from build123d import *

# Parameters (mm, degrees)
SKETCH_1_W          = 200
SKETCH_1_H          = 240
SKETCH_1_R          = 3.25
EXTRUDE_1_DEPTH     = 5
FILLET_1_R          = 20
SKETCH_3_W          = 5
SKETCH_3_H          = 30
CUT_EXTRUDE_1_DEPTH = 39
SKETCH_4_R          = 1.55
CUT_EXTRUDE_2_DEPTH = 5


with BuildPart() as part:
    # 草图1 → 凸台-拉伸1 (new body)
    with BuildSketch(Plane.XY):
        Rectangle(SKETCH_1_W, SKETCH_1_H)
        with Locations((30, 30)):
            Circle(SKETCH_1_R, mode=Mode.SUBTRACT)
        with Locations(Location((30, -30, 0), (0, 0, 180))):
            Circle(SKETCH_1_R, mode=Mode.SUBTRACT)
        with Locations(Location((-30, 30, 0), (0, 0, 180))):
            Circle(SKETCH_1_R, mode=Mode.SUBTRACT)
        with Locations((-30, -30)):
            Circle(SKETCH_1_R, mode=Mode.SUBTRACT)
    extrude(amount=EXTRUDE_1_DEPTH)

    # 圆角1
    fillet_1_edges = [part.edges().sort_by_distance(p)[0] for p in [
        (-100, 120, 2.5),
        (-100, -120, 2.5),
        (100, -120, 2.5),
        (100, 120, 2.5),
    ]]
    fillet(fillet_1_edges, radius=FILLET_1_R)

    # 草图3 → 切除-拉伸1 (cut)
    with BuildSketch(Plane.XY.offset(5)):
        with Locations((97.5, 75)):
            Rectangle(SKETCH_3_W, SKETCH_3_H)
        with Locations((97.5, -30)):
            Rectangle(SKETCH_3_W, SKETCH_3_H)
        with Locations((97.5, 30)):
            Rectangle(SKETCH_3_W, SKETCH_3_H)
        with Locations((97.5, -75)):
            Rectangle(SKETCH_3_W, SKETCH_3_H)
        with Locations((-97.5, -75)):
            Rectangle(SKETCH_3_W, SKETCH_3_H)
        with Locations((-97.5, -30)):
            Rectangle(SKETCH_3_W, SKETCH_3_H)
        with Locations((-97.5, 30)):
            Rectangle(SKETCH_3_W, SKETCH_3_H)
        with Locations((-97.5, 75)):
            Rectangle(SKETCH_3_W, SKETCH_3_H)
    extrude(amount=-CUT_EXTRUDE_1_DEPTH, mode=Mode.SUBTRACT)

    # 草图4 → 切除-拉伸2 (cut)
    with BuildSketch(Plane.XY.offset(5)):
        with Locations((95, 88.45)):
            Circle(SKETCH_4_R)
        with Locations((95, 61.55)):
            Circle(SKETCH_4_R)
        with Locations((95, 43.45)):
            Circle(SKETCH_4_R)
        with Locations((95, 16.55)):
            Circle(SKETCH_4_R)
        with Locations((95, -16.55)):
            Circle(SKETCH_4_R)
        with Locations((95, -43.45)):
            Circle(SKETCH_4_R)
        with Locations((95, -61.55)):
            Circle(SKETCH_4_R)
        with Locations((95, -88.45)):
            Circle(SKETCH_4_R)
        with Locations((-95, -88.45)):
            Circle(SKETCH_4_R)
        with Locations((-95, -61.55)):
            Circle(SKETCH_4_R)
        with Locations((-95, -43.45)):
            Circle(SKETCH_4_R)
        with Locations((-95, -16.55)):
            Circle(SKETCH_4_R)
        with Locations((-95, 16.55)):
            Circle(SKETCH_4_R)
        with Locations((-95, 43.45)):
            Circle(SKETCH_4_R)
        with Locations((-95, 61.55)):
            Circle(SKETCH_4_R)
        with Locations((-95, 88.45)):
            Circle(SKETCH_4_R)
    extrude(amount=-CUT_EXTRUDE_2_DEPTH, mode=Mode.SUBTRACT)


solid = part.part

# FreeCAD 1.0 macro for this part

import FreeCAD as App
import Part
import Sketcher
Q = App.Units.Quantity


def edges_at(feature, points):
    """Names of the edges that pass closest to the given points."""
    edges = feature.Shape.Edges
    near = lambda p: min(range(len(edges)), key=lambda i: edges[i].distToShape(Part.Vertex(*p))[0])
    return sorted({f"Edge{near(p) + 1}" for p in points})

doc = App.newDocument("Part")
body = doc.addObject("PartDesign::Body", "Body")

sketch1 = doc.addObject("Sketcher::SketchObject", "Sketch")
body.addObject(sketch1)
sketch1.AttachmentSupport = (doc.XY_Plane, [""])
sketch1.MapMode = "FlatFace"
sketch1.addGeometry(Part.LineSegment(App.Vector(-100, 120, 0), App.Vector(-100, -120, 0)), False)
sketch1.addGeometry(Part.LineSegment(App.Vector(-100, -120, 0), App.Vector(100, -120, 0)), False)
sketch1.addGeometry(Part.LineSegment(App.Vector(100, -120, 0), App.Vector(100, 120, 0)), False)
sketch1.addGeometry(Part.LineSegment(App.Vector(100, 120, 0), App.Vector(-100, 120, 0)), False)
sketch1.addGeometry(Part.Circle(App.Vector(-30, -30, 0), App.Vector(0, 0, 1), 3.2), False)
sketch1.addGeometry(Part.Circle(App.Vector(30, -30, 0), App.Vector(0, 0, 1), 3.2), False)
sketch1.addGeometry(Part.Circle(App.Vector(-30, 30, 0), App.Vector(0, 0, 1), 3.2), False)
sketch1.addGeometry(Part.Circle(App.Vector(30, 30, 0), App.Vector(0, 0, 1), 3.2), False)
sketch1.addConstraint(Sketcher.Constraint("Coincident", 0, 2, 1, 1))
sketch1.addConstraint(Sketcher.Constraint("Coincident", 1, 2, 2, 1))
sketch1.addConstraint(Sketcher.Constraint("Coincident", 2, 2, 3, 1))
sketch1.addConstraint(Sketcher.Constraint("Coincident", 3, 2, 0, 1))
sketch1.addConstraint(Sketcher.Constraint("Vertical", 0))
sketch1.addConstraint(Sketcher.Constraint("Horizontal", 1))
sketch1.addConstraint(Sketcher.Constraint("Vertical", 2))
sketch1.addConstraint(Sketcher.Constraint("Horizontal", 3))
sketch1.addConstraint(Sketcher.Constraint("Equal", 4, 5))
sketch1.addConstraint(Sketcher.Constraint("Equal", 5, 6))
sketch1.addConstraint(Sketcher.Constraint("Equal", 6, 7))
sketch1.addConstraint(Sketcher.Constraint("Symmetric", 5, 3, 6, 3, -1, 1))
sketch1.addConstraint(Sketcher.Constraint("Symmetric", 4, 3, 7, 3, -1, 1))
sketch1.addConstraint(Sketcher.Constraint("Symmetric", 0, 2, 2, 2, -1, 1))
sketch1.addConstraint(Sketcher.Constraint("Symmetric", 4, 3, 5, 3, -2))
sketch1.addConstraint(Sketcher.Constraint("Diameter", 4, Q("6.5 mm")))
sketch1.addConstraint(Sketcher.Constraint("DistanceX", 1, 1, 1, 2, Q("200 mm")))
sketch1.addConstraint(Sketcher.Constraint("DistanceY", 0, 2, 0, 1, Q("240 mm")))
sketch1.addConstraint(Sketcher.Constraint("DistanceX", 4, 3, -1, 1, Q("30 mm")))
sketch1.addConstraint(Sketcher.Constraint("DistanceY", 4, 3, -1, 1, Q("30 mm")))
pad1 = doc.addObject("PartDesign::Pad", "Pad")
body.addObject(pad1)
pad1.Profile = sketch1
pad1.Length = 5
doc.recompute()

fillet = doc.addObject("PartDesign::Fillet", "Fillet")
body.addObject(fillet)
fillet.Base = (pad1, edges_at(pad1, [
    (-100, 120, 2.5),
    (-100, -120, 2.5),
    (100, -120, 2.5),
    (100, 120, 2.5),
]))
fillet.Radius = 20

sketch2 = doc.addObject("Sketcher::SketchObject", "Sketch001")
body.addObject(sketch2)
sketch2.AttachmentSupport = (doc.XY_Plane, [""])
sketch2.MapMode = "FlatFace"
sketch2.AttachmentOffset = App.Placement(App.Vector(0, 0, 5), App.Rotation())
sketch2.addGeometry(Part.LineSegment(App.Vector(95, 90, 0), App.Vector(95, 60, 0)), False)
sketch2.addGeometry(Part.LineSegment(App.Vector(95, 60, 0), App.Vector(100, 60, 0)), False)
sketch2.addGeometry(Part.LineSegment(App.Vector(100, 60, 0), App.Vector(100, 90, 0)), False)
sketch2.addGeometry(Part.LineSegment(App.Vector(100, 90, 0), App.Vector(95, 90, 0)), False)
sketch2.addGeometry(Part.LineSegment(App.Vector(95, -15, 0), App.Vector(95, -45, 0)), False)
sketch2.addGeometry(Part.LineSegment(App.Vector(95, -45, 0), App.Vector(100, -45, 0)), False)
sketch2.addGeometry(Part.LineSegment(App.Vector(100, -45, 0), App.Vector(100, -15, 0)), False)
sketch2.addGeometry(Part.LineSegment(App.Vector(100, -15, 0), App.Vector(95, -15, 0)), False)
sketch2.addGeometry(Part.LineSegment(App.Vector(95, 45, 0), App.Vector(95, 15, 0)), False)
sketch2.addGeometry(Part.LineSegment(App.Vector(95, 15, 0), App.Vector(100, 15, 0)), False)
sketch2.addGeometry(Part.LineSegment(App.Vector(100, 15, 0), App.Vector(100, 45, 0)), False)
sketch2.addGeometry(Part.LineSegment(App.Vector(100, 45, 0), App.Vector(95, 45, 0)), False)
sketch2.addGeometry(Part.LineSegment(App.Vector(95, -60, 0), App.Vector(95, -90, 0)), False)
sketch2.addGeometry(Part.LineSegment(App.Vector(95, -90, 0), App.Vector(100, -90, 0)), False)
sketch2.addGeometry(Part.LineSegment(App.Vector(100, -90, 0), App.Vector(100, -60, 0)), False)
sketch2.addGeometry(Part.LineSegment(App.Vector(100, -60, 0), App.Vector(95, -60, 0)), False)
sketch2.addGeometry(Part.LineSegment(App.Vector(-100, -60, 0), App.Vector(-100, -90, 0)), False)
sketch2.addGeometry(Part.LineSegment(App.Vector(-100, -90, 0), App.Vector(-95, -90, 0)), False)
sketch2.addGeometry(Part.LineSegment(App.Vector(-95, -90, 0), App.Vector(-95, -60, 0)), False)
sketch2.addGeometry(Part.LineSegment(App.Vector(-95, -60, 0), App.Vector(-100, -60, 0)), False)
sketch2.addGeometry(Part.LineSegment(App.Vector(-100, -15, 0), App.Vector(-100, -45, 0)), False)
sketch2.addGeometry(Part.LineSegment(App.Vector(-100, -45, 0), App.Vector(-95, -45, 0)), False)
sketch2.addGeometry(Part.LineSegment(App.Vector(-95, -45, 0), App.Vector(-95, -15, 0)), False)
sketch2.addGeometry(Part.LineSegment(App.Vector(-95, -15, 0), App.Vector(-100, -15, 0)), False)
sketch2.addGeometry(Part.LineSegment(App.Vector(-100, 45, 0), App.Vector(-100, 15, 0)), False)
sketch2.addGeometry(Part.LineSegment(App.Vector(-100, 15, 0), App.Vector(-95, 15, 0)), False)
sketch2.addGeometry(Part.LineSegment(App.Vector(-95, 15, 0), App.Vector(-95, 45, 0)), False)
sketch2.addGeometry(Part.LineSegment(App.Vector(-95, 45, 0), App.Vector(-100, 45, 0)), False)
sketch2.addGeometry(Part.LineSegment(App.Vector(-100, 90, 0), App.Vector(-100, 60, 0)), False)
sketch2.addGeometry(Part.LineSegment(App.Vector(-100, 60, 0), App.Vector(-95, 60, 0)), False)
sketch2.addGeometry(Part.LineSegment(App.Vector(-95, 60, 0), App.Vector(-95, 90, 0)), False)
sketch2.addGeometry(Part.LineSegment(App.Vector(-95, 90, 0), App.Vector(-100, 90, 0)), False)
sketch2.addConstraint(Sketcher.Constraint("Coincident", 0, 2, 1, 1))
sketch2.addConstraint(Sketcher.Constraint("Coincident", 1, 2, 2, 1))
sketch2.addConstraint(Sketcher.Constraint("Coincident", 2, 2, 3, 1))
sketch2.addConstraint(Sketcher.Constraint("Coincident", 3, 2, 0, 1))
sketch2.addConstraint(Sketcher.Constraint("Coincident", 4, 2, 5, 1))
sketch2.addConstraint(Sketcher.Constraint("Coincident", 5, 2, 6, 1))
sketch2.addConstraint(Sketcher.Constraint("Coincident", 6, 2, 7, 1))
sketch2.addConstraint(Sketcher.Constraint("Coincident", 7, 2, 4, 1))
sketch2.addConstraint(Sketcher.Constraint("Coincident", 8, 2, 9, 1))
sketch2.addConstraint(Sketcher.Constraint("Coincident", 9, 2, 10, 1))
sketch2.addConstraint(Sketcher.Constraint("Coincident", 10, 2, 11, 1))
sketch2.addConstraint(Sketcher.Constraint("Coincident", 11, 2, 8, 1))
sketch2.addConstraint(Sketcher.Constraint("Coincident", 12, 2, 13, 1))
sketch2.addConstraint(Sketcher.Constraint("Coincident", 13, 2, 14, 1))
sketch2.addConstraint(Sketcher.Constraint("Coincident", 14, 2, 15, 1))
sketch2.addConstraint(Sketcher.Constraint("Coincident", 15, 2, 12, 1))
sketch2.addConstraint(Sketcher.Constraint("Coincident", 16, 2, 17, 1))
sketch2.addConstraint(Sketcher.Constraint("Coincident", 17, 2, 18, 1))
sketch2.addConstraint(Sketcher.Constraint("Coincident", 18, 2, 19, 1))
sketch2.addConstraint(Sketcher.Constraint("Coincident", 19, 2, 16, 1))
sketch2.addConstraint(Sketcher.Constraint("Coincident", 20, 2, 21, 1))
sketch2.addConstraint(Sketcher.Constraint("Coincident", 21, 2, 22, 1))
sketch2.addConstraint(Sketcher.Constraint("Coincident", 22, 2, 23, 1))
sketch2.addConstraint(Sketcher.Constraint("Coincident", 23, 2, 20, 1))
sketch2.addConstraint(Sketcher.Constraint("Coincident", 24, 2, 25, 1))
sketch2.addConstraint(Sketcher.Constraint("Coincident", 25, 2, 26, 1))
sketch2.addConstraint(Sketcher.Constraint("Coincident", 26, 2, 27, 1))
sketch2.addConstraint(Sketcher.Constraint("Coincident", 27, 2, 24, 1))
sketch2.addConstraint(Sketcher.Constraint("Coincident", 28, 2, 29, 1))
sketch2.addConstraint(Sketcher.Constraint("Coincident", 29, 2, 30, 1))
sketch2.addConstraint(Sketcher.Constraint("Coincident", 30, 2, 31, 1))
sketch2.addConstraint(Sketcher.Constraint("Coincident", 31, 2, 28, 1))
sketch2.addConstraint(Sketcher.Constraint("Vertical", 0))
sketch2.addConstraint(Sketcher.Constraint("Horizontal", 1))
sketch2.addConstraint(Sketcher.Constraint("Vertical", 2))
sketch2.addConstraint(Sketcher.Constraint("Horizontal", 3))
sketch2.addConstraint(Sketcher.Constraint("Vertical", 4))
sketch2.addConstraint(Sketcher.Constraint("Horizontal", 5))
sketch2.addConstraint(Sketcher.Constraint("Vertical", 6))
sketch2.addConstraint(Sketcher.Constraint("Horizontal", 7))
sketch2.addConstraint(Sketcher.Constraint("Vertical", 8))
sketch2.addConstraint(Sketcher.Constraint("Horizontal", 9))
sketch2.addConstraint(Sketcher.Constraint("Vertical", 10))
sketch2.addConstraint(Sketcher.Constraint("Horizontal", 11))
sketch2.addConstraint(Sketcher.Constraint("Vertical", 12))
sketch2.addConstraint(Sketcher.Constraint("Horizontal", 13))
sketch2.addConstraint(Sketcher.Constraint("Vertical", 14))
sketch2.addConstraint(Sketcher.Constraint("Horizontal", 15))
sketch2.addConstraint(Sketcher.Constraint("Vertical", 16))
sketch2.addConstraint(Sketcher.Constraint("Horizontal", 17))
sketch2.addConstraint(Sketcher.Constraint("Vertical", 18))
sketch2.addConstraint(Sketcher.Constraint("Horizontal", 19))
sketch2.addConstraint(Sketcher.Constraint("Vertical", 20))
sketch2.addConstraint(Sketcher.Constraint("Horizontal", 21))
sketch2.addConstraint(Sketcher.Constraint("Vertical", 22))
sketch2.addConstraint(Sketcher.Constraint("Horizontal", 23))
sketch2.addConstraint(Sketcher.Constraint("Vertical", 24))
sketch2.addConstraint(Sketcher.Constraint("Horizontal", 25))
sketch2.addConstraint(Sketcher.Constraint("Vertical", 26))
sketch2.addConstraint(Sketcher.Constraint("Horizontal", 27))
sketch2.addConstraint(Sketcher.Constraint("Vertical", 28))
sketch2.addConstraint(Sketcher.Constraint("Horizontal", 29))
sketch2.addConstraint(Sketcher.Constraint("Vertical", 30))
sketch2.addConstraint(Sketcher.Constraint("Horizontal", 31))
sketch2.addConstraint(Sketcher.Constraint("Symmetric", 2, 2, 16, 2, -1, 1))
sketch2.addConstraint(Sketcher.Constraint("Symmetric", 0, 2, 18, 2, -1, 1))
sketch2.addConstraint(Sketcher.Constraint("Symmetric", 10, 2, 20, 2, -1, 1))
sketch2.addConstraint(Sketcher.Constraint("Symmetric", 8, 2, 22, 2, -1, 1))
sketch2.addConstraint(Sketcher.Constraint("Symmetric", 6, 2, 24, 2, -1, 1))
sketch2.addConstraint(Sketcher.Constraint("Symmetric", 4, 2, 26, 2, -1, 1))
sketch2.addConstraint(Sketcher.Constraint("Symmetric", 14, 2, 28, 2, -1, 1))
sketch2.addConstraint(Sketcher.Constraint("Symmetric", 12, 2, 30, 2, -1, 1))
sketch2.addConstraint(Sketcher.Constraint("Symmetric", 13, 2, 16, 2, -2))
sketch2.addConstraint(Sketcher.Constraint("Symmetric", 15, 2, 18, 2, -2))
sketch2.addConstraint(Sketcher.Constraint("Symmetric", 5, 2, 20, 2, -2))
sketch2.addConstraint(Sketcher.Constraint("Symmetric", 7, 2, 22, 2, -2))
sketch2.addConstraint(Sketcher.Constraint("Vertical", 3, 2, 4, 2))
sketch2.addConstraint(Sketcher.Constraint("Vertical", 2, 2, 5, 2))
sketch2.addConstraint(Sketcher.Constraint("Equal", 2, 4))
sketch2.addConstraint(Sketcher.Constraint("DistanceX", 1, 1, 1, 2, Q("5 mm")))
sketch2.addConstraint(Sketcher.Constraint("DistanceY", 0, 2, 0, 1, Q("30 mm")))
sketch2.addConstraint(Sketcher.Constraint("DistanceX", -1, 1, 0, 2, Q("95 mm")))
sketch2.addConstraint(Sketcher.Constraint("DistanceY", -1, 1, 0, 2, Q("60 mm")))
sketch2.addConstraint(Sketcher.Constraint("DistanceY", 4, 2, -1, 1, Q("45 mm")))
pocket1 = doc.addObject("PartDesign::Pocket", "Pocket")
body.addObject(pocket1)
pocket1.Profile = sketch2
pocket1.Length = 39

sketch3 = doc.addObject("Sketcher::SketchObject", "Sketch002")
body.addObject(sketch3)
sketch3.AttachmentSupport = (doc.XY_Plane, [""])
sketch3.MapMode = "FlatFace"
sketch3.AttachmentOffset = App.Placement(App.Vector(0, 0, 5), App.Rotation())
sketch3.addGeometry(Part.Circle(App.Vector(95, 88.5, 0), App.Vector(0, 0, 1), 1.6), False)
sketch3.addGeometry(Part.Circle(App.Vector(95, 61.5, 0), App.Vector(0, 0, 1), 1.6), False)
sketch3.addGeometry(Part.Circle(App.Vector(95, 43.5, 0), App.Vector(0, 0, 1), 1.6), False)
sketch3.addGeometry(Part.Circle(App.Vector(95, 16.6, 0), App.Vector(0, 0, 1), 1.6), False)
sketch3.addGeometry(Part.Circle(App.Vector(95, -16.6, 0), App.Vector(0, 0, 1), 1.6), False)
sketch3.addGeometry(Part.Circle(App.Vector(95, -43.5, 0), App.Vector(0, 0, 1), 1.6), False)
sketch3.addGeometry(Part.Circle(App.Vector(95, -61.5, 0), App.Vector(0, 0, 1), 1.6), False)
sketch3.addGeometry(Part.Circle(App.Vector(95, -88.5, 0), App.Vector(0, 0, 1), 1.6), False)
sketch3.addGeometry(Part.Circle(App.Vector(-95, -88.5, 0), App.Vector(0, 0, 1), 1.6), False)
sketch3.addGeometry(Part.Circle(App.Vector(-95, -61.5, 0), App.Vector(0, 0, 1), 1.6), False)
sketch3.addGeometry(Part.Circle(App.Vector(-95, -43.5, 0), App.Vector(0, 0, 1), 1.6), False)
sketch3.addGeometry(Part.Circle(App.Vector(-95, -16.6, 0), App.Vector(0, 0, 1), 1.6), False)
sketch3.addGeometry(Part.Circle(App.Vector(-95, 16.6, 0), App.Vector(0, 0, 1), 1.6), False)
sketch3.addGeometry(Part.Circle(App.Vector(-95, 43.5, 0), App.Vector(0, 0, 1), 1.6), False)
sketch3.addGeometry(Part.Circle(App.Vector(-95, 61.5, 0), App.Vector(0, 0, 1), 1.6), False)
sketch3.addGeometry(Part.Circle(App.Vector(-95, 88.5, 0), App.Vector(0, 0, 1), 1.6), False)
sketch3.addConstraint(Sketcher.Constraint("Equal", 0, 1))
sketch3.addConstraint(Sketcher.Constraint("Equal", 1, 2))
sketch3.addConstraint(Sketcher.Constraint("Equal", 2, 3))
sketch3.addConstraint(Sketcher.Constraint("Equal", 3, 4))
sketch3.addConstraint(Sketcher.Constraint("Equal", 4, 5))
sketch3.addConstraint(Sketcher.Constraint("Equal", 5, 6))
sketch3.addConstraint(Sketcher.Constraint("Equal", 6, 7))
sketch3.addConstraint(Sketcher.Constraint("Equal", 7, 8))
sketch3.addConstraint(Sketcher.Constraint("Equal", 8, 9))
sketch3.addConstraint(Sketcher.Constraint("Equal", 9, 10))
sketch3.addConstraint(Sketcher.Constraint("Equal", 10, 11))
sketch3.addConstraint(Sketcher.Constraint("Equal", 11, 12))
sketch3.addConstraint(Sketcher.Constraint("Equal", 12, 13))
sketch3.addConstraint(Sketcher.Constraint("Equal", 13, 14))
sketch3.addConstraint(Sketcher.Constraint("Equal", 14, 15))
sketch3.addConstraint(Sketcher.Constraint("Symmetric", 0, 3, 8, 3, -1, 1))
sketch3.addConstraint(Sketcher.Constraint("Symmetric", 1, 3, 9, 3, -1, 1))
sketch3.addConstraint(Sketcher.Constraint("Symmetric", 2, 3, 10, 3, -1, 1))
sketch3.addConstraint(Sketcher.Constraint("Symmetric", 3, 3, 11, 3, -1, 1))
sketch3.addConstraint(Sketcher.Constraint("Symmetric", 4, 3, 12, 3, -1, 1))
sketch3.addConstraint(Sketcher.Constraint("Symmetric", 5, 3, 13, 3, -1, 1))
sketch3.addConstraint(Sketcher.Constraint("Symmetric", 6, 3, 14, 3, -1, 1))
sketch3.addConstraint(Sketcher.Constraint("Symmetric", 7, 3, 15, 3, -1, 1))
sketch3.addConstraint(Sketcher.Constraint("Symmetric", 7, 3, 8, 3, -2))
sketch3.addConstraint(Sketcher.Constraint("Symmetric", 6, 3, 9, 3, -2))
sketch3.addConstraint(Sketcher.Constraint("Symmetric", 5, 3, 10, 3, -2))
sketch3.addConstraint(Sketcher.Constraint("Symmetric", 4, 3, 11, 3, -2))
sketch3.addConstraint(Sketcher.Constraint("Vertical", 0, 3, 1, 3))
sketch3.addConstraint(Sketcher.Constraint("Vertical", 1, 3, 2, 3))
sketch3.addConstraint(Sketcher.Constraint("Vertical", 2, 3, 3, 3))
sketch3.addConstraint(Sketcher.Constraint("Diameter", 0, Q("3.1 mm")))
sketch3.addConstraint(Sketcher.Constraint("DistanceX", -1, 1, 0, 3, Q("95 mm")))
sketch3.addConstraint(Sketcher.Constraint("DistanceY", 2, 3, 0, 3, Q("45 mm")))
sketch3.addConstraint(Sketcher.Constraint("DistanceY", 3, 3, 1, 3, Q("45 mm")))
sketch3.addConstraint(Sketcher.Constraint("DistanceY", 4, 3, 2, 3, Q("60 mm")))
sketch3.addConstraint(Sketcher.Constraint("DistanceY", 1, 3, 0, 3, Q("26.9 mm")))
pocket2 = doc.addObject("PartDesign::Pocket", "Pocket001")
body.addObject(pocket2)
pocket2.Profile = sketch3
pocket2.Length = 5

doc.recompute()
